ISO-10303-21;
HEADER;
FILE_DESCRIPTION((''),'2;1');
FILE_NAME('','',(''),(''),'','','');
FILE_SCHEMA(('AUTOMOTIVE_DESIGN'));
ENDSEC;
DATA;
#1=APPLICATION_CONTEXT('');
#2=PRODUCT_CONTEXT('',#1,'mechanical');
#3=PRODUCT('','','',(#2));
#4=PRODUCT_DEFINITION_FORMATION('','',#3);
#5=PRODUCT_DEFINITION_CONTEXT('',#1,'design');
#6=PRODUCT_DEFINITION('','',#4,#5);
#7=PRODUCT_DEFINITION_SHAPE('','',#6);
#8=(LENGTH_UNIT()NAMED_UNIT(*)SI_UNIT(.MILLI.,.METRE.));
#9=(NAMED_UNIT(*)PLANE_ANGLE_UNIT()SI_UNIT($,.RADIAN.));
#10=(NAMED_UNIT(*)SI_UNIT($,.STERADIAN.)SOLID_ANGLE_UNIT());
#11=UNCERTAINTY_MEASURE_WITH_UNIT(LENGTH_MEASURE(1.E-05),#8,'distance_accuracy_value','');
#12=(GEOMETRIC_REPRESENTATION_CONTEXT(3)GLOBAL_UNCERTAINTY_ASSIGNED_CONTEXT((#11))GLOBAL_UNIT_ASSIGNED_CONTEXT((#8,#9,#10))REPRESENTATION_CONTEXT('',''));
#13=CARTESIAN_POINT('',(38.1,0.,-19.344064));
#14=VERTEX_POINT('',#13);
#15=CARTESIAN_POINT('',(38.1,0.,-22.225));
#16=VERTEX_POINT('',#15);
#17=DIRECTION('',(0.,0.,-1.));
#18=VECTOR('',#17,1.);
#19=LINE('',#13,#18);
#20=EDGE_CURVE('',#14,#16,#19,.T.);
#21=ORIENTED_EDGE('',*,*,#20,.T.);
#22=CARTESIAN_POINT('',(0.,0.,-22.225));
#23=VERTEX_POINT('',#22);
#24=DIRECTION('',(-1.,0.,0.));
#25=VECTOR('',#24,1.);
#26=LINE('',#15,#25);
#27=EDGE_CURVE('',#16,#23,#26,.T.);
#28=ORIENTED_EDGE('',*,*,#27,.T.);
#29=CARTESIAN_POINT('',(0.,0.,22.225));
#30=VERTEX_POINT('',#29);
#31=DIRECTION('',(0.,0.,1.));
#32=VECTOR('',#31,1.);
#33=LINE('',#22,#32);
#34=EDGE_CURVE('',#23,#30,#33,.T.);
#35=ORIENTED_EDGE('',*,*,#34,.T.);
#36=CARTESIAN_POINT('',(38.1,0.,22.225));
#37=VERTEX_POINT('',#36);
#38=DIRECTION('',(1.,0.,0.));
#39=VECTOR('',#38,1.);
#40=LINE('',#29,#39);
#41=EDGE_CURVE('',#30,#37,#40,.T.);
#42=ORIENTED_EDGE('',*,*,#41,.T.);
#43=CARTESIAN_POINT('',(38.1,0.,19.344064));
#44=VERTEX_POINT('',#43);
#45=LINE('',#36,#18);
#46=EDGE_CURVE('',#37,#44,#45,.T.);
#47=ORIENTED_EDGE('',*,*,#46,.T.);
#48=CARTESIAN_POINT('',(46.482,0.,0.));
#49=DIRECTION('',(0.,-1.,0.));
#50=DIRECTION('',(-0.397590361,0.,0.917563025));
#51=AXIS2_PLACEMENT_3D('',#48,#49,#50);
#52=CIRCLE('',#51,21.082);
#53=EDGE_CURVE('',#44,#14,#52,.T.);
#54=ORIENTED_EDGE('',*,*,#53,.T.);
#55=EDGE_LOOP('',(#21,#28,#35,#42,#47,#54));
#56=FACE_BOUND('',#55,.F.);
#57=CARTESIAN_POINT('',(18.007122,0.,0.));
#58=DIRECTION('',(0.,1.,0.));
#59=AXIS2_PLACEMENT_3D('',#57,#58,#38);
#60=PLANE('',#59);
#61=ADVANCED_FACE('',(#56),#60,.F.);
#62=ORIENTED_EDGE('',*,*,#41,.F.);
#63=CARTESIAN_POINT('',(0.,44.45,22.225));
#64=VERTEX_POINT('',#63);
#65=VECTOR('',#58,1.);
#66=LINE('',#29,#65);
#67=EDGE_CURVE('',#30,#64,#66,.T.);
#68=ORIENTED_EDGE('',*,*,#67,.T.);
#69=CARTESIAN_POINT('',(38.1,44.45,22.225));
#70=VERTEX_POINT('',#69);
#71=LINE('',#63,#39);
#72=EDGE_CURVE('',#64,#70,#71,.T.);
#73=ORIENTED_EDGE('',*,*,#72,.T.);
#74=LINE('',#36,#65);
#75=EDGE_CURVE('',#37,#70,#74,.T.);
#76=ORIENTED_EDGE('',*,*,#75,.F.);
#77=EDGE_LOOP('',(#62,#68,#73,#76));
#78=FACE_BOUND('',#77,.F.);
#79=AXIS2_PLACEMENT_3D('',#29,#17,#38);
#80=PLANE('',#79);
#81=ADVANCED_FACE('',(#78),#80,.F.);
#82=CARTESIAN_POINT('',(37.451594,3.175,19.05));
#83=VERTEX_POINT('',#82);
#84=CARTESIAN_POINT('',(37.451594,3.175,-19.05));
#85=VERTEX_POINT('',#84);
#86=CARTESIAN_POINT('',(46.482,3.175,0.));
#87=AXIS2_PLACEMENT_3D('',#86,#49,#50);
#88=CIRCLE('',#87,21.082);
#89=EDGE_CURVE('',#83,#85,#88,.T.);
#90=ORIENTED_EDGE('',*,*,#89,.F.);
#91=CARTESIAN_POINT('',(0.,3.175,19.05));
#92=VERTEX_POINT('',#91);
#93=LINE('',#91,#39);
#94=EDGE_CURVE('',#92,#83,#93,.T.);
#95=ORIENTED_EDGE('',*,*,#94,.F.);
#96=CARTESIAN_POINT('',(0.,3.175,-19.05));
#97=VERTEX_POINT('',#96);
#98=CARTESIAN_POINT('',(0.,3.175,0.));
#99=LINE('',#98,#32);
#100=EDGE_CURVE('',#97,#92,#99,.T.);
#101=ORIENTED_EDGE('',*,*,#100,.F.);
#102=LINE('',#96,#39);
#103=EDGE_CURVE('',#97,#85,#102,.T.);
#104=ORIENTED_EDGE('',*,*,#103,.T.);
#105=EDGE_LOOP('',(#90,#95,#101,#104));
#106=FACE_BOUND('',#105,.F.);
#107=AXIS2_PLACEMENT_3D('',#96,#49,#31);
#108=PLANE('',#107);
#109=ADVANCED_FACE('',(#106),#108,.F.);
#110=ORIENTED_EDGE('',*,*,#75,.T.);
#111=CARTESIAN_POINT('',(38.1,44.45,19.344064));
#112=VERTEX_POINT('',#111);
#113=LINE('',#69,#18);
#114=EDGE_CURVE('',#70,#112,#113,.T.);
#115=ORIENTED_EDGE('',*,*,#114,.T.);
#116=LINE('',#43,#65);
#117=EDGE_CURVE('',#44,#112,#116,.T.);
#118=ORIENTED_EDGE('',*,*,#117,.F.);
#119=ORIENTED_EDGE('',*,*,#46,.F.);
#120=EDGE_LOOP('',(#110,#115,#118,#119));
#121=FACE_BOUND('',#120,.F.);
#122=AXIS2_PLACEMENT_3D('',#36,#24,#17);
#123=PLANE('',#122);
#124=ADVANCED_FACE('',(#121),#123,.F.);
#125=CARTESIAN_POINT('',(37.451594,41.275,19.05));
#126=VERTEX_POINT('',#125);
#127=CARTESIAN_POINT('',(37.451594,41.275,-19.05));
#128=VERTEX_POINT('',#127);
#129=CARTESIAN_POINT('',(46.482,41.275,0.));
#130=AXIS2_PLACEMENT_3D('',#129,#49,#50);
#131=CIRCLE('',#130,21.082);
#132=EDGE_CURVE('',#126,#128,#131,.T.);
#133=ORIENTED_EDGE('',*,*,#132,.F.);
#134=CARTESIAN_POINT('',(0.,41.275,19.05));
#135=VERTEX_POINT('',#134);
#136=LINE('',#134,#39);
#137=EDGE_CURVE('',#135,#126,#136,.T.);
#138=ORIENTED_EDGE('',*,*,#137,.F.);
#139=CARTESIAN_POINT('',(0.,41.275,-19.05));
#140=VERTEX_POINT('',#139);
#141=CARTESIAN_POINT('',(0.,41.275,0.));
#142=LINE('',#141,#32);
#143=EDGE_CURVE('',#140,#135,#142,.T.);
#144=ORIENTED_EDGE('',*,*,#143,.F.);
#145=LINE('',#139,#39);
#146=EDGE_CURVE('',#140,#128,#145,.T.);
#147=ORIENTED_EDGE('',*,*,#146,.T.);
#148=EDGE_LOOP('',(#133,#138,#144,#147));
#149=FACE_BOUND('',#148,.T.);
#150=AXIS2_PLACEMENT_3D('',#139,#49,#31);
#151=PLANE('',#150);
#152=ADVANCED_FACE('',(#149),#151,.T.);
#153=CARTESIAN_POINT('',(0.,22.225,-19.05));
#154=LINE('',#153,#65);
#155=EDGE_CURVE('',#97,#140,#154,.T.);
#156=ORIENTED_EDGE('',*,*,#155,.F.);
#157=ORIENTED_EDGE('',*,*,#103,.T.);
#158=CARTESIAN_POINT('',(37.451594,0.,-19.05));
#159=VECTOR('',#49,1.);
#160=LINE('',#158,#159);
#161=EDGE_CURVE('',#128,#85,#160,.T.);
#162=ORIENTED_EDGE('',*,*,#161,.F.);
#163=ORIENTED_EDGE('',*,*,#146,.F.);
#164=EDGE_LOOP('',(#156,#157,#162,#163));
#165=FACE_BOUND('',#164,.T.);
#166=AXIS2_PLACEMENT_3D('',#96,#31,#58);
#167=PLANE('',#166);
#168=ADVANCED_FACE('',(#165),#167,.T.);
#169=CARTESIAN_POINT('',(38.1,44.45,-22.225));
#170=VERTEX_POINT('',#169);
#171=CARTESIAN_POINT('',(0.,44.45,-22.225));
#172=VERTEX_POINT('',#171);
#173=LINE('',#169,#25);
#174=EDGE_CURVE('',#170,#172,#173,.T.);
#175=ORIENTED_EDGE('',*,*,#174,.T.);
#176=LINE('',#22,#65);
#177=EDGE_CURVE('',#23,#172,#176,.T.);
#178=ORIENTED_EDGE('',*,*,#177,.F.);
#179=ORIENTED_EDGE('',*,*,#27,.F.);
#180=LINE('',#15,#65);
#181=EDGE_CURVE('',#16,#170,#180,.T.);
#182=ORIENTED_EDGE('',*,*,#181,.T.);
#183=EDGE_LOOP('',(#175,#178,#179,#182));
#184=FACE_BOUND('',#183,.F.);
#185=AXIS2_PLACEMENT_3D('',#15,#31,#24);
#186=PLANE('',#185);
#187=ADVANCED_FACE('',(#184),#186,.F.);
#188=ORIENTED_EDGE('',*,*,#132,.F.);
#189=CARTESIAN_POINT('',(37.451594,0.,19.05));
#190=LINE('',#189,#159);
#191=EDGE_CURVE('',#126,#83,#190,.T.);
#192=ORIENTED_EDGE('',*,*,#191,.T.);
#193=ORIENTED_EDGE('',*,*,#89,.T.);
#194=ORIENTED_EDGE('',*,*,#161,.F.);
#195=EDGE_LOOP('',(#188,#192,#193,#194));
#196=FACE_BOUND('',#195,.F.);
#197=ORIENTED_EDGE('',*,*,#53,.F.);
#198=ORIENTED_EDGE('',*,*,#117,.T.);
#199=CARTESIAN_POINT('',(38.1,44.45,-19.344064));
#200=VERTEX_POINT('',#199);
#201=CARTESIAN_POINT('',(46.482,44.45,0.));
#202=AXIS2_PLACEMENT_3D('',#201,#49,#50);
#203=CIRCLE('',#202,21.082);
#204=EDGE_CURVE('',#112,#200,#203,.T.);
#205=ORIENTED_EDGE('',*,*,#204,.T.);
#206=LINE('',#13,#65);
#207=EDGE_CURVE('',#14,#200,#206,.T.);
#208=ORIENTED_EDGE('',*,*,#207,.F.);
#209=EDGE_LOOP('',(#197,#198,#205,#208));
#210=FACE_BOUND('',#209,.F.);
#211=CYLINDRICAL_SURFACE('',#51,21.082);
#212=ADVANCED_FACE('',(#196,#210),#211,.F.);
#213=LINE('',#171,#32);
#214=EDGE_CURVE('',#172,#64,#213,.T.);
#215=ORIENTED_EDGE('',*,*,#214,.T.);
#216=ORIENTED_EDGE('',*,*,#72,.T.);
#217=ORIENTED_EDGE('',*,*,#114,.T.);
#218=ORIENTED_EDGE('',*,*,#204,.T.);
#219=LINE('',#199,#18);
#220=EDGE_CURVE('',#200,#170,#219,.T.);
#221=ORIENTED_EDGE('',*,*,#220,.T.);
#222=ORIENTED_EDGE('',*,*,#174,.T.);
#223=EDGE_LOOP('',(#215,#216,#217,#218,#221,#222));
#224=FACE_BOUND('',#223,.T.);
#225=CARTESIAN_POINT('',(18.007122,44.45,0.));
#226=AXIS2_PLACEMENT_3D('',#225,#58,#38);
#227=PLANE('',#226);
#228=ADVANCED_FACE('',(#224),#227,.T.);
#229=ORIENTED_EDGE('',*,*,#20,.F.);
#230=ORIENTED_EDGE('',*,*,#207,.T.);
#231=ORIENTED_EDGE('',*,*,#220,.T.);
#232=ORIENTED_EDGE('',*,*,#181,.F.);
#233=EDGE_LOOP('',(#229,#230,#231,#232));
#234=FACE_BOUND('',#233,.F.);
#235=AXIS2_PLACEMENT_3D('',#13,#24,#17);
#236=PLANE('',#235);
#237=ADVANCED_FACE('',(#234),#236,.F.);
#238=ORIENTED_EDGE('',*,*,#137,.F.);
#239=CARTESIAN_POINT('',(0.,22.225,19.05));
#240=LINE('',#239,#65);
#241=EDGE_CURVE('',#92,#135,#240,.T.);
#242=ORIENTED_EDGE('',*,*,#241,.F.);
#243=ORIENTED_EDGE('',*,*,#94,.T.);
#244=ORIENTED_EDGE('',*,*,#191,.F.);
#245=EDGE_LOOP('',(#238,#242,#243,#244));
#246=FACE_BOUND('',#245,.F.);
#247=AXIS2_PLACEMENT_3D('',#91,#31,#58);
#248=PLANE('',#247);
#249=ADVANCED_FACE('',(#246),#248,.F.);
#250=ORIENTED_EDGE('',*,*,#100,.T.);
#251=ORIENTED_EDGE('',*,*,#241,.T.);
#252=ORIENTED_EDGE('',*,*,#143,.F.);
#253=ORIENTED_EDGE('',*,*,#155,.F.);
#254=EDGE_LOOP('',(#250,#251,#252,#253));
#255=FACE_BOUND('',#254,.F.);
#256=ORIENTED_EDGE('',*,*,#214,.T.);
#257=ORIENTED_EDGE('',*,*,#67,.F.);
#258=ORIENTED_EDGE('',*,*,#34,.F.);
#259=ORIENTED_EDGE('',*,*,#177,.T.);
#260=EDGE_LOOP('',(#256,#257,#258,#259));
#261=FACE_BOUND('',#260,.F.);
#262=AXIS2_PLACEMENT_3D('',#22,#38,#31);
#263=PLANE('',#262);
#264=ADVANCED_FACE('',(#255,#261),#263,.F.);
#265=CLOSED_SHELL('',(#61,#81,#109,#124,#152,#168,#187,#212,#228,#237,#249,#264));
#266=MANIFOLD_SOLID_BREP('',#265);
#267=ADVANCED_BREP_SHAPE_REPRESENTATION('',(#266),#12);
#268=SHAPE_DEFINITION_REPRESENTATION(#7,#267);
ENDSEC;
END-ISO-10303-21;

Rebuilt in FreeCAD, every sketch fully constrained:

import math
import FreeCAD as App
import Part
import Sketcher

V = App.Vector
Q = App.Units.Quantity


def add_polygon(sketch, points):
    """Adds a closed chain of lines whose ends are joined by coincident constraints."""
    first, n = sketch.GeometryCount, len(points)
    for a, b in zip(points, points[1:] + points[:1]):
        sketch.addGeometry(Part.LineSegment(App.Vector(*a, 0), App.Vector(*b, 0)), False)
    for i in range(n):
        sketch.addConstraint(Sketcher.Constraint("Coincident", first + i, 2, first + (i + 1) % n, 1))

doc = App.newDocument("Part")
body = doc.addObject("PartDesign::Body", "Body")

# Sketch on XZ plane
sketch1 = body.newObject("Sketcher::SketchObject", "Sketch")
sketch1.AttachmentSupport = (doc.getObject("XZ_Plane"), [""])
sketch1.MapMode = "FlatFace"
sketch1.addGeometry(Part.LineSegment(V(0, -22.2, 0), V(0, 22.2, 0)), False)
sketch1.addGeometry(Part.LineSegment(V(0, 22.2, 0), V(38.1, 22.2, 0)), False)
sketch1.addGeometry(Part.LineSegment(V(38.1, 22.2, 0), V(38.1, 19.3, 0)), False)
sketch1.addGeometry(Part.ArcOfCircle(Part.Circle(V(46.5, 0, 0), V(0, 0, 1), 21.1), math.radians(113), math.radians(247)), False)
sketch1.addGeometry(Part.LineSegment(V(38.1, -19.3, 0), V(38.1, -22.2, 0)), False)
sketch1.addGeometry(Part.LineSegment(V(38.1, -22.2, 0), V(0, -22.2, 0)), False)
sketch1.addConstraint(Sketcher.Constraint("Coincident", 0, 2, 1, 1))
sketch1.addConstraint(Sketcher.Constraint("Coincident", 1, 2, 2, 1))
sketch1.addConstraint(Sketcher.Constraint("Coincident", 2, 2, 3, 1))
sketch1.addConstraint(Sketcher.Constraint("Coincident", 3, 2, 4, 1))
sketch1.addConstraint(Sketcher.Constraint("Coincident", 4, 2, 5, 1))
sketch1.addConstraint(Sketcher.Constraint("Coincident", 5, 2, 0, 1))
sketch1.addConstraint(Sketcher.Constraint("Vertical", 0))
sketch1.addConstraint(Sketcher.Constraint("Horizontal", 1))
sketch1.addConstraint(Sketcher.Constraint("Vertical", 2))
sketch1.addConstraint(Sketcher.Constraint("Vertical", 4))
sketch1.addConstraint(Sketcher.Constraint("Horizontal", 5))
sketch1.addConstraint(Sketcher.Constraint("Symmetric", 0, 2, 5, 2, -1, 1))
sketch1.addConstraint(Sketcher.Constraint("Symmetric", 2, 2, 3, 2, -1))
sketch1.addConstraint(Sketcher.Constraint("Radius", 3, Q("0.83 in")))
sketch1.addConstraint(Sketcher.Constraint("DistanceX", 1, 1, 1, 2, Q("1.5 in")))
sketch1.addConstraint(Sketcher.Constraint("DistanceY", 0, 1, 0, 2, Q("1.75 in")))
sketch1.addConstraint(Sketcher.Constraint("DistanceX", -1, 1, 3, 3, Q("1.83 in")))
pad1 = body.newObject("PartDesign::Pad", "Pad")
pad1.Profile = sketch1
pad1.Length = Q("1.75 in")
pad1.Reversed = True

# Sketch on YZ plane
sketch2 = body.newObject("Sketcher::SketchObject", "Sketch001")
sketch2.AttachmentSupport = (doc.getObject("YZ_Plane"), [""])
sketch2.MapMode = "FlatFace"
add_polygon(sketch2, [(41, -19), (3, -19), (3, 19), (41, 19)])  # lines 0-3
sketch2.addConstraint(Sketcher.Constraint("Horizontal", 0))
sketch2.addConstraint(Sketcher.Constraint("Vertical", 1))
sketch2.addConstraint(Sketcher.Constraint("Horizontal", 2))
sketch2.addConstraint(Sketcher.Constraint("Vertical", 3))
sketch2.addConstraint(Sketcher.Constraint("Equal", 2, 1))
sketch2.addConstraint(Sketcher.Constraint("DistanceX", 0, 2, 0, 1, Q("1.5 in")))
sketch2.addConstraint(Sketcher.Constraint("DistanceY", 0, 2, -1, 1, Q("0.75 in")))
sketch2.addConstraint(Sketcher.Constraint("DistanceX", -1, 1, 0, 2, Q("0.125 in")))
pocket1 = body.newObject("PartDesign::Pocket", "Pocket")
pocket1.Profile = sketch2
pocket1.Type = "ThroughAll"
pocket1.Reversed = True

doc.recompute()
